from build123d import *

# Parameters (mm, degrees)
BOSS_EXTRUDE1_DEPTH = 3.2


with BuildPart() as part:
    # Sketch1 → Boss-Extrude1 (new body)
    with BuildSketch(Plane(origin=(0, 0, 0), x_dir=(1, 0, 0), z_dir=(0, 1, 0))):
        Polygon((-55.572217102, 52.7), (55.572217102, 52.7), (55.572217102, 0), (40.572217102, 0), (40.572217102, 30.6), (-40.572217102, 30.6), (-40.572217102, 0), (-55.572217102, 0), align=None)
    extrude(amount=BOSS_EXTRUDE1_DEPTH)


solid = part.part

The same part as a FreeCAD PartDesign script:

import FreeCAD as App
import Part
import Sketcher

V = App.Vector
Q = App.Units.Quantity

doc = App.newDocument("Part")
body = doc.addObject("PartDesign::Body", "Body")

# Sketch on XZ plane
sketch1 = body.newObject("Sketcher::SketchObject", "Sketch")
sketch1.AttachmentSupport = (doc.getObject("XZ_Plane"), [""])
sketch1.MapMode = "FlatFace"
sketch1.addGeometry([
    Part.LineSegment(V(56, -53, 0), V(-56, -53, 0)),  # 0
    Part.LineSegment(V(-56, -53, 0), V(-56, 0, 0)),  # 1
    Part.LineSegment(V(-56, 0, 0), V(-41, 0, 0)),  # 2
    Part.LineSegment(V(-41, 0, 0), V(-41, -31, 0)),  # 3
    Part.LineSegment(V(-41, -31, 0), V(41, -31, 0)),  # 4
    Part.LineSegment(V(41, -31, 0), V(41, 0, 0)),  # 5
    Part.LineSegment(V(41, 0, 0), V(56, 0, 0)),  # 6
    Part.LineSegment(V(56, 0, 0), V(56, -53, 0)),  # 7
], False)
sketch1.addConstraint([
    Sketcher.Constraint("Coincident", 0, 2, 1, 1),
    Sketcher.Constraint("Coincident", 1, 2, 2, 1),
    Sketcher.Constraint("Coincident", 2, 2, 3, 1),
    Sketcher.Constraint("Coincident", 3, 2, 4, 1),
    Sketcher.Constraint("Coincident", 4, 2, 5, 1),
    Sketcher.Constraint("Coincident", 5, 2, 6, 1),
    Sketcher.Constraint("Coincident", 6, 2, 7, 1),
    Sketcher.Constraint("Coincident", 7, 2, 0, 1),
    Sketcher.Constraint("Horizontal", 0),
    Sketcher.Constraint("Vertical", 1),
    Sketcher.Constraint("Horizontal", 2),
    Sketcher.Constraint("Vertical", 3),
    Sketcher.Constraint("Horizontal", 4),
    Sketcher.Constraint("Vertical", 5),
    Sketcher.Constraint("Horizontal", 6),
    Sketcher.Constraint("Vertical", 7),
    Sketcher.Constraint("Symmetric", 2, 2, 5, 2, -1, 1),
    Sketcher.Constraint("Symmetric", 1, 2, 6, 2, -2),
    Sketcher.Constraint("DistanceX", 2, 1, 2, 2, Q("15 mm")),
    Sketcher.Constraint("DistanceY", 1, 1, 1, 2, Q("52.7 mm")),
    Sketcher.Constraint("DistanceY", 3, 2, 3, 1, Q("30.6 mm")),
    Sketcher.Constraint("DistanceX", 0, 2, 0, 1, Q("111.144434 mm")),
])
pad1 = body.newObject("PartDesign::Pad", "Pad")
pad1.Profile = sketch1
pad1.Length = 3.2
pad1.Reversed = True

doc.recompute()
